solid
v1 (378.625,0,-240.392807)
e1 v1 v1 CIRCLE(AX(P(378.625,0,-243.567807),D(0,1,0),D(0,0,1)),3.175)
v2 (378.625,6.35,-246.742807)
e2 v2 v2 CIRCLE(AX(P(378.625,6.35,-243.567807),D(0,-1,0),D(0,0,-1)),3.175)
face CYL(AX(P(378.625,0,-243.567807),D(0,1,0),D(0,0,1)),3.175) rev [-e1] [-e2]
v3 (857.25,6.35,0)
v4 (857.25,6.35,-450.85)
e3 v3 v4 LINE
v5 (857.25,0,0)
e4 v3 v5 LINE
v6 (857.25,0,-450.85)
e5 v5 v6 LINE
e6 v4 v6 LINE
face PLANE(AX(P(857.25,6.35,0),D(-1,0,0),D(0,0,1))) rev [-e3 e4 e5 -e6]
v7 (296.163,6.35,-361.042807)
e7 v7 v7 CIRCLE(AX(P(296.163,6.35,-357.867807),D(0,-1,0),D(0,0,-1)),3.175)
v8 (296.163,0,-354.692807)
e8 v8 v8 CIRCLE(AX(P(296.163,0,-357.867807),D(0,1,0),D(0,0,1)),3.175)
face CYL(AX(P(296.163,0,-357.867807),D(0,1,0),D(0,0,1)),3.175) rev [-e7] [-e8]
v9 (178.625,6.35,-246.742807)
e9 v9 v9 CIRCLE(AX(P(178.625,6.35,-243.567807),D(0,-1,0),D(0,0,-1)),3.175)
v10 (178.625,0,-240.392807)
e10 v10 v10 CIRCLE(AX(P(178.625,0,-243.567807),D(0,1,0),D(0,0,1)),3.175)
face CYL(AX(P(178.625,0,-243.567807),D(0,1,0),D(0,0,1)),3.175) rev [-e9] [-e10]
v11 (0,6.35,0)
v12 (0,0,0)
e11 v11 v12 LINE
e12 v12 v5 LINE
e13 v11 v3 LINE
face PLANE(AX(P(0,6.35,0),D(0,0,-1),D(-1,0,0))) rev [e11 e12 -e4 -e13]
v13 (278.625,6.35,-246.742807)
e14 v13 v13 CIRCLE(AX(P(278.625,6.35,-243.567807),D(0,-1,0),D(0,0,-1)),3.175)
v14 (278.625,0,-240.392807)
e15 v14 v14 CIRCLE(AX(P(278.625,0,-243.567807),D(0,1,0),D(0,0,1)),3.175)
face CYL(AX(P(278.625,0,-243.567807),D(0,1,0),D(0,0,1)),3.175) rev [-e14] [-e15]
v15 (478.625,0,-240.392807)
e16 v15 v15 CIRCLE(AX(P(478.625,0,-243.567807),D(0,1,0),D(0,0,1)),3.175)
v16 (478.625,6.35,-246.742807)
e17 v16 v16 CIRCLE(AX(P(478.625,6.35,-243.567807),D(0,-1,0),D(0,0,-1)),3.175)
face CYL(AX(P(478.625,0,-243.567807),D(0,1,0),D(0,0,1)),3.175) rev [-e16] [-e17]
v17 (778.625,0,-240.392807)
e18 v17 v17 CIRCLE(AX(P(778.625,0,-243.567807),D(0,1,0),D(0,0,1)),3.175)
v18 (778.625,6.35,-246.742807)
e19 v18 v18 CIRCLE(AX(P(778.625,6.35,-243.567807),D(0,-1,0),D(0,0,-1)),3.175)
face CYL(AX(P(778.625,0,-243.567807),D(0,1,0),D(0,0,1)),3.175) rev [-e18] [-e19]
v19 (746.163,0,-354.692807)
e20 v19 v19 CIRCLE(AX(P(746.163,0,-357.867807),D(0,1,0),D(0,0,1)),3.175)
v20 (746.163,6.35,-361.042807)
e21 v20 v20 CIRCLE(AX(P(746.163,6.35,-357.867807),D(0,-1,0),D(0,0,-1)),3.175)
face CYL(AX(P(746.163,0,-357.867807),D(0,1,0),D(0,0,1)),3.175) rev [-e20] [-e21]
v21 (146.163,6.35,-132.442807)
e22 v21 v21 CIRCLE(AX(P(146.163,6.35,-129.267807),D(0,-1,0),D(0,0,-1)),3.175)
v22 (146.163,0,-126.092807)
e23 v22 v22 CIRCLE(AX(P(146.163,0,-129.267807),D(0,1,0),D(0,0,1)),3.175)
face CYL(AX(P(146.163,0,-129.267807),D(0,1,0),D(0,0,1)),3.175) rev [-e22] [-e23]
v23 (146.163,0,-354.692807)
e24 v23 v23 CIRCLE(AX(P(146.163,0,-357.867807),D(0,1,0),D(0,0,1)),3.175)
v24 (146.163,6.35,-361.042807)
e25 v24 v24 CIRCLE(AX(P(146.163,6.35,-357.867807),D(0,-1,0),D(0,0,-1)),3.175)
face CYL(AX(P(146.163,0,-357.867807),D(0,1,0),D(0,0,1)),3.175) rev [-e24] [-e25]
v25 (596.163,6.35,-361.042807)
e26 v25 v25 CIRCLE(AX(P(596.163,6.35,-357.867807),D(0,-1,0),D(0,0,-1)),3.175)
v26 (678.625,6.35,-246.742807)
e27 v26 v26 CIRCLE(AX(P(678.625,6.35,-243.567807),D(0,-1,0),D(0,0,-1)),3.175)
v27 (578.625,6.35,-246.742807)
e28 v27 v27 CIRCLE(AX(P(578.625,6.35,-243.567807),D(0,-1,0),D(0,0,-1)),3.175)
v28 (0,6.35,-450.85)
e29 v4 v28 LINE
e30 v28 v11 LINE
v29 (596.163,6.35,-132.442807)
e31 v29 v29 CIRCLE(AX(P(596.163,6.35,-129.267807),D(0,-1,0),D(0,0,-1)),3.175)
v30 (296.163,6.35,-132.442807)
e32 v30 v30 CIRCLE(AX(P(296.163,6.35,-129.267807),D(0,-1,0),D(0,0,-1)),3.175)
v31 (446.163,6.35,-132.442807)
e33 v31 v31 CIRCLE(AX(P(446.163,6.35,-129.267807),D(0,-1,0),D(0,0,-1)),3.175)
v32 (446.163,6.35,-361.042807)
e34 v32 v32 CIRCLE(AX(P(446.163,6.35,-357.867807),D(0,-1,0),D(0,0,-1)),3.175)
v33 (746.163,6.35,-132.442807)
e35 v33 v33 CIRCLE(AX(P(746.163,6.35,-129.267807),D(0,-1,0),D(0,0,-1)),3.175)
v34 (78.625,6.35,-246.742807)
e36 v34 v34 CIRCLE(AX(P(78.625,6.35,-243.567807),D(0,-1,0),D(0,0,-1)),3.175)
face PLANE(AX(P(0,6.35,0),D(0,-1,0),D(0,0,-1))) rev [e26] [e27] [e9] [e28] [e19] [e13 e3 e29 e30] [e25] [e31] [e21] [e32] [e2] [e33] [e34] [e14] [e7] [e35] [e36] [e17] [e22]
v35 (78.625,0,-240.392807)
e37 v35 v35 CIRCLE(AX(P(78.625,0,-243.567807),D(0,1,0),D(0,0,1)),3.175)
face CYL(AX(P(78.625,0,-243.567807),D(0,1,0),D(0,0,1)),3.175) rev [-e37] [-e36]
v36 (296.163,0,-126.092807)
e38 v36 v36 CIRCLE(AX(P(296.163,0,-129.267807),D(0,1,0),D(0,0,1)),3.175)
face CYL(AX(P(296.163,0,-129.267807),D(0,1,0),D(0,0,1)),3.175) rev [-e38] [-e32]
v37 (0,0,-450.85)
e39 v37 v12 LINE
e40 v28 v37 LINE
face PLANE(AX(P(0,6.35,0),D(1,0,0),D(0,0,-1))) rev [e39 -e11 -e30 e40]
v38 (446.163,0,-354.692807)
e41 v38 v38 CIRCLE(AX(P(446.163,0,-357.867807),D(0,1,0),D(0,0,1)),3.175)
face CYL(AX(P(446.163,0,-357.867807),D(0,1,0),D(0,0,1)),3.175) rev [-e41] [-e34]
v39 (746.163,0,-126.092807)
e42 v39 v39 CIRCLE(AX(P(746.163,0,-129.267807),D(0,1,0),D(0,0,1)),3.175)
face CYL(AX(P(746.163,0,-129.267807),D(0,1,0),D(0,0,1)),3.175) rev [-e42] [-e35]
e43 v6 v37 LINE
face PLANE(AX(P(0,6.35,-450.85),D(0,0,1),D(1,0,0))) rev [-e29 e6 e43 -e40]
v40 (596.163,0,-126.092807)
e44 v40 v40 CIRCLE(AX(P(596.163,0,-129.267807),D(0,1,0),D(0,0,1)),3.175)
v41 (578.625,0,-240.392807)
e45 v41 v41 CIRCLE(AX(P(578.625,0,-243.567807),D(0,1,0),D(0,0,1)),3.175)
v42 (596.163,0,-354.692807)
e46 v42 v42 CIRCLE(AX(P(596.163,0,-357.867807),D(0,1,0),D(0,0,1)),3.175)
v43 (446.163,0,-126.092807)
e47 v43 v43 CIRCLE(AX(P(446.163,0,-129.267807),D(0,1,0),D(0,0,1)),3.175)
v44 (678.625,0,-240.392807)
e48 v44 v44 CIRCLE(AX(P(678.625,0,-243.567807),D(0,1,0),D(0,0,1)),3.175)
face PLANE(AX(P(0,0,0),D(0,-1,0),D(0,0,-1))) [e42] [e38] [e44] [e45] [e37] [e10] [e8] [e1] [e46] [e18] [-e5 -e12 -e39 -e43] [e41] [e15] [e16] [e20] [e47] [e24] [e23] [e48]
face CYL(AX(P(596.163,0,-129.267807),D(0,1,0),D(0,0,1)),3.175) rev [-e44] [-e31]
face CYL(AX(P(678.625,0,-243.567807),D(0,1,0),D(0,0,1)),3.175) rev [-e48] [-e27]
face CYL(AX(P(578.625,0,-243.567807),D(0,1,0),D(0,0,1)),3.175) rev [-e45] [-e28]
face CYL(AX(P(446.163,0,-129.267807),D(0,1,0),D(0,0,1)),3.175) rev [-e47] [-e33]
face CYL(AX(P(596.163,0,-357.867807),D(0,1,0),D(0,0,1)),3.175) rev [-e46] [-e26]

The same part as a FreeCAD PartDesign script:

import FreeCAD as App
import Part
import Sketcher
Q = App.Units.Quantity

doc = App.newDocument("Part")
body = doc.addObject("PartDesign::Body", "Body")

# Sketch on XZ plane
sketch1 = body.newObject("Sketcher::SketchObject", "Sketch")
sketch1.AttachmentSupport = (doc.getObject("XZ_Plane"), [""])
sketch1.MapMode = "FlatFace"
sketch1.addGeometry([
    Part.LineSegment(App.Vector(0, -451, 0), App.Vector(0, 0, 0)),
    Part.LineSegment(App.Vector(0, 0, 0), App.Vector(857, 0, 0)),
    Part.LineSegment(App.Vector(857, 0, 0), App.Vector(857, -451, 0)),
    Part.LineSegment(App.Vector(857, -451, 0), App.Vector(0, -451, 0)),
], False)
sketch1.addConstraint([
    Sketcher.Constraint("Coincident", 0, 2, 1, 1),
    Sketcher.Constraint("Coincident", 1, 2, 2, 1),
    Sketcher.Constraint("Coincident", 2, 2, 3, 1),
    Sketcher.Constraint("Coincident", 3, 2, 0, 1),
    Sketcher.Constraint("Vertical", 0),
    Sketcher.Constraint("Horizontal", 1),
    Sketcher.Constraint("Vertical", 2),
    Sketcher.Constraint("Horizontal", 3),
    Sketcher.Constraint("Coincident", 0, 2, -1, 1),
    Sketcher.Constraint("DistanceX", 1, 1, 1, 2, Q("33.75 in")),
    Sketcher.Constraint("DistanceY", 0, 1, 0, 2, Q("17.75 in")),
])
pad1 = body.newObject("PartDesign::Pad", "Pad")
pad1.Profile = sketch1
pad1.Length = Q("0.25 in")
pad1.Reversed = True

# Sketch on XZ plane
sketch2 = body.newObject("Sketcher::SketchObject", "Sketch001")
sketch2.AttachmentSupport = (doc.getObject("XZ_Plane"), [""])
sketch2.MapMode = "FlatFace"
sketch2.AttachmentOffset = App.Placement(App.Vector(0, 0, -0.25 * 25.4), App.Rotation())
sketch2.addGeometry([
    Part.Circle(App.Vector(78.6, -243.6, 0), App.Vector(0, 0, 1), 3.2),  # 0
    Part.Circle(App.Vector(178.6, -243.6, 0), App.Vector(0, 0, 1), 3.2),  # 1
    Part.Circle(App.Vector(278.6, -243.6, 0), App.Vector(0, 0, 1), 3.2),  # 2
    Part.Circle(App.Vector(378.6, -243.6, 0), App.Vector(0, 0, 1), 3.2),  # 3
    Part.Circle(App.Vector(478.6, -243.6, 0), App.Vector(0, 0, 1), 3.2),  # 4
    Part.Circle(App.Vector(578.6, -243.6, 0), App.Vector(0, 0, 1), 3.2),  # 5
    Part.Circle(App.Vector(678.6, -243.6, 0), App.Vector(0, 0, 1), 3.2),  # 6
    Part.Circle(App.Vector(778.6, -243.6, 0), App.Vector(0, 0, 1), 3.2),  # 7
    Part.Circle(App.Vector(146.2, -357.9, 0), App.Vector(0, 0, 1), 3.2),  # 8
    Part.Circle(App.Vector(296.2, -357.9, 0), App.Vector(0, 0, 1), 3.2),  # 9
    Part.Circle(App.Vector(446.2, -357.9, 0), App.Vector(0, 0, 1), 3.2),  # 10
    Part.Circle(App.Vector(596.2, -357.9, 0), App.Vector(0, 0, 1), 3.2),  # 11
    Part.Circle(App.Vector(746.2, -357.9, 0), App.Vector(0, 0, 1), 3.2),  # 12
    Part.Circle(App.Vector(146.2, -129.3, 0), App.Vector(0, 0, 1), 3.2),  # 13
    Part.Circle(App.Vector(296.2, -129.3, 0), App.Vector(0, 0, 1), 3.2),  # 14
    Part.Circle(App.Vector(446.2, -129.3, 0), App.Vector(0, 0, 1), 3.2),  # 15
    Part.Circle(App.Vector(596.2, -129.3, 0), App.Vector(0, 0, 1), 3.2),  # 16
    Part.Circle(App.Vector(746.2, -129.3, 0), App.Vector(0, 0, 1), 3.2),  # 17
], False)
sketch2.addConstraint([
    Sketcher.Constraint("Equal", 0, 1),
    Sketcher.Constraint("Equal", 1, 2),
    Sketcher.Constraint("Equal", 2, 3),
    Sketcher.Constraint("Equal", 3, 4),
    Sketcher.Constraint("Equal", 4, 5),
    Sketcher.Constraint("Equal", 5, 6),
    Sketcher.Constraint("Equal", 6, 7),
    Sketcher.Constraint("Equal", 7, 8),
    Sketcher.Constraint("Equal", 8, 9),
    Sketcher.Constraint("Equal", 9, 10),
    Sketcher.Constraint("Equal", 10, 11),
    Sketcher.Constraint("Equal", 11, 12),
    Sketcher.Constraint("Equal", 12, 13),
    Sketcher.Constraint("Equal", 13, 14),
    Sketcher.Constraint("Equal", 14, 15),
    Sketcher.Constraint("Equal", 15, 16),
    Sketcher.Constraint("Equal", 16, 17),
    Sketcher.Constraint("Horizontal", 0, 3, 1, 3),
    Sketcher.Constraint("Horizontal", 1, 3, 2, 3),
    Sketcher.Constraint("Horizontal", 2, 3, 3, 3),
    Sketcher.Constraint("Horizontal", 3, 3, 4, 3),
    Sketcher.Constraint("Horizontal", 4, 3, 5, 3),
    Sketcher.Constraint("Horizontal", 5, 3, 6, 3),
    Sketcher.Constraint("Horizontal", 6, 3, 7, 3),
    Sketcher.Constraint("Horizontal", 8, 3, 9, 3),
    Sketcher.Constraint("Horizontal", 9, 3, 10, 3),
    Sketcher.Constraint("Horizontal", 10, 3, 11, 3),
    Sketcher.Constraint("Horizontal", 11, 3, 12, 3),
    Sketcher.Constraint("Horizontal", 13, 3, 14, 3),
    Sketcher.Constraint("Horizontal", 14, 3, 15, 3),
    Sketcher.Constraint("Horizontal", 15, 3, 16, 3),
    Sketcher.Constraint("Horizontal", 16, 3, 17, 3),
    Sketcher.Constraint("Vertical", 8, 3, 13, 3),
    Sketcher.Constraint("Vertical", 9, 3, 14, 3),
    Sketcher.Constraint("Vertical", 10, 3, 15, 3),
    Sketcher.Constraint("Vertical", 11, 3, 16, 3),
    Sketcher.Constraint("Vertical", 12, 3, 17, 3),
    Sketcher.Constraint("Diameter", 0, Q("0.25 in")),
    Sketcher.Constraint("DistanceY", 8, 3, 13, 3, Q("9 in")),
    Sketcher.Constraint("DistanceY", 8, 3, 1, 3, Q("4.5 in")),
    Sketcher.Constraint("DistanceX", -1, 1, 0, 3, 78.625),
    Sketcher.Constraint("DistanceX", -1, 1, 1, 3, 178.625),
    Sketcher.Constraint("DistanceX", -1, 1, 2, 3, 278.625),
    Sketcher.Constraint("DistanceX", -1, 1, 3, 3, 378.625),
    Sketcher.Constraint("DistanceX", -1, 1, 4, 3, 478.625),
    Sketcher.Constraint("DistanceX", -1, 1, 5, 3, 578.625),
    Sketcher.Constraint("DistanceX", -1, 1, 6, 3, 678.625),
    Sketcher.Constraint("DistanceX", -1, 1, 7, 3, 778.625),
    Sketcher.Constraint("DistanceX", -1, 1, 8, 3, 146.163),
    Sketcher.Constraint("DistanceX", -1, 1, 9, 3, 296.163),
    Sketcher.Constraint("DistanceX", -1, 1, 10, 3, 446.163),
    Sketcher.Constraint("DistanceX", -1, 1, 11, 3, 596.163),
    Sketcher.Constraint("DistanceX", -1, 1, 12, 3, 746.163),
    Sketcher.Constraint("DistanceY", 0, 3, -1, 1, 243.567807),
])
pocket1 = body.newObject("PartDesign::Pocket", "Pocket")
pocket1.Profile = sketch2
pocket1.Type = "ThroughAll"
pocket1.Midplane = True

doc.recompute()
